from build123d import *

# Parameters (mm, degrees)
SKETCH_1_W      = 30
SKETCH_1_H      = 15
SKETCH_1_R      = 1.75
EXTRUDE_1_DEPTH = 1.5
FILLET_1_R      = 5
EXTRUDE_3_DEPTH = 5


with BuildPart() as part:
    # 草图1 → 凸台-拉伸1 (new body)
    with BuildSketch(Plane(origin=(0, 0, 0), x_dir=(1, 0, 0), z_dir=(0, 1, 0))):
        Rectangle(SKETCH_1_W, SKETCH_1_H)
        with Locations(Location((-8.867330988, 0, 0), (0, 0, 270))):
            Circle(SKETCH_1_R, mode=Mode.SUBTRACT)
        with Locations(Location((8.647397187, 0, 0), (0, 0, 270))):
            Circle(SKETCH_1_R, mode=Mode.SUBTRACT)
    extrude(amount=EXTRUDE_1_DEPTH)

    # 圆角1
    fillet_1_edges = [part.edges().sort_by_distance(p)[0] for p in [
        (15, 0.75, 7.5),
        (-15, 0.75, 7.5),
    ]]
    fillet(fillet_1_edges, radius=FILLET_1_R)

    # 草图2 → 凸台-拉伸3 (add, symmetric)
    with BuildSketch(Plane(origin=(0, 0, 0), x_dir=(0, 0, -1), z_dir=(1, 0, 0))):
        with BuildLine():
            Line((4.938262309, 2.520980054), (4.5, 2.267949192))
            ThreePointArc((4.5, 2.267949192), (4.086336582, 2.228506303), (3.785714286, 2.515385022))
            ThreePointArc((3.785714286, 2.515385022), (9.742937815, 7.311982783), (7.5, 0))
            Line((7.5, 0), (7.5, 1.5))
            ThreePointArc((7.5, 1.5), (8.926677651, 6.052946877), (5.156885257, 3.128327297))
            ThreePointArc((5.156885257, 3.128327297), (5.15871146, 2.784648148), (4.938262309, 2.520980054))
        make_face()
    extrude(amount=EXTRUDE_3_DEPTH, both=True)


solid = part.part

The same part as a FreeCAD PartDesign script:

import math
import FreeCAD as App
import Part
import Sketcher
Q = App.Units.Quantity


def edges_at(feature, points):
    """Names of the edges that pass closest to the given points."""
    edges = feature.Shape.Edges
    near = lambda p: min(range(len(edges)), key=lambda i: edges[i].distToShape(Part.Vertex(*p))[0])
    return sorted({f"Edge{near(p) + 1}" for p in points})


def add_polygon(sketch, points):
    """Adds a closed chain of lines whose ends are joined by coincident constraints."""
    first, n = sketch.GeometryCount, len(points)
    for a, b in zip(points, points[1:] + points[:1]):
        sketch.addGeometry(Part.LineSegment(App.Vector(*a, 0), App.Vector(*b, 0)), False)
    for i in range(n):
        sketch.addConstraint(Sketcher.Constraint("Coincident", first + i, 2, first + (i + 1) % n, 1))

doc = App.newDocument("Part")
body = doc.addObject("PartDesign::Body", "Body")

sketch1 = body.newObject("Sketcher::SketchObject", "Sketch")
sketch1.AttachmentSupport = (doc.getObject("XZ_Plane"), [""])
sketch1.MapMode = "FlatFace"
add_polygon(sketch1, [(-15, -7.5), (-15, 7.5), (15, 7.5), (15, -7.5)])
sketch1.addGeometry(Part.Circle(App.Vector(-8.9, 0, 0), App.Vector(0, 0, 1), 1.8), False)
sketch1.addGeometry(Part.Circle(App.Vector(8.6, 0, 0), App.Vector(0, 0, 1), 1.8), False)
sketch1.addConstraint([
    Sketcher.Constraint("Vertical", 0),
    Sketcher.Constraint("Horizontal", 1),
    Sketcher.Constraint("Vertical", 2),
    Sketcher.Constraint("Horizontal", 3),
    Sketcher.Constraint("Equal", 4, 5),
    Sketcher.Constraint("Symmetric", 0, 2, 2, 2, -1, 1),
    Sketcher.Constraint("PointOnObject", 4, 3, -1),
    Sketcher.Constraint("PointOnObject", 5, 3, -1),
    Sketcher.Constraint("Diameter", 4, Q("3.5 mm")),
    Sketcher.Constraint("DistanceX", 1, 1, 1, 2, Q("30 mm")),
    Sketcher.Constraint("DistanceY", 0, 1, 0, 2, Q("15 mm")),
    Sketcher.Constraint("DistanceX", 4, 3, -1, 1, Q("8.867331 mm")),
    Sketcher.Constraint("DistanceX", 4, 3, 5, 3, Q("17.514728 mm")),
])
pad1 = body.newObject("PartDesign::Pad", "Pad")
pad1.Profile = sketch1
pad1.Length = 1.5
pad1.Reversed = True
doc.recompute()

fillet = body.newObject("PartDesign::Fillet", "Fillet")
fillet.Base = (pad1, edges_at(pad1, [(15, 0.75, 7.5), (-15, 0.75, 7.5)]))
fillet.Radius = 5

sketch2 = body.newObject("Sketcher::SketchObject", "Sketch001")
sketch2.AttachmentSupport = (doc.getObject("YZ_Plane"), [""])
sketch2.MapMode = "FlatFace"
sketch2.addGeometry([
    Part.LineSegment(App.Vector(2.3, -4.5, 0), App.Vector(2.5, -4.9, 0)),
    Part.ArcOfCircle(Part.Circle(App.Vector(3, -4.7, 0), App.Vector(0, 0, 1), 0.5), math.radians(-150), math.radians(-70)),
    Part.ArcOfCircle(Part.Circle(App.Vector(4, -7.5, 0), App.Vector(0, 0, 1), 2.5), math.radians(180), math.radians(470)),
    Part.LineSegment(App.Vector(1.5, -7.5, 0), App.Vector(0, -7.5, 0)),
    Part.ArcOfCircle(Part.Circle(App.Vector(4, -7.5, 0), App.Vector(0, 0, 1), 4), math.radians(180), math.radians(472)),
    Part.ArcOfCircle(Part.Circle(App.Vector(2.7, -4.2, 0), App.Vector(0, 0, 1), 0.5), math.radians(112), math.radians(210)),
], False)
sketch2.addConstraint([
    Sketcher.Constraint("Tangent", 0, 2, 1, 1),
    Sketcher.Constraint("Tangent", 1, 2, 2, 2),
    Sketcher.Constraint("Coincident", 2, 1, 3, 1),
    Sketcher.Constraint("Coincident", 3, 2, 4, 1),
    Sketcher.Constraint("Tangent", 4, 2, 5, 1),
    Sketcher.Constraint("Tangent", 5, 2, 0, 1),
    Sketcher.Constraint("Horizontal", 3),
    Sketcher.Constraint("Coincident", 4, 3, 2, 3),
    Sketcher.Constraint("Equal", 1, 5),
    Sketcher.Constraint("PointOnObject", 3, 2, -2),
    Sketcher.Constraint("Horizontal", 4, 3, 2, 1),
    Sketcher.Constraint("Radius", 4, Q("4 mm")),
    Sketcher.Constraint("Radius", 1, Q("0.5 mm")),
    Sketcher.Constraint("Radius", 2, Q("2.5 mm")),
    Sketcher.Constraint("Angle", 0, Q("-60 deg")),
    Sketcher.Constraint("DistanceY", 2, 3, -1, 1, Q("7.5 mm")),
    Sketcher.Constraint("DistanceY", 5, 2, -1, 1, Q("4.5 mm")),
])
pad2 = body.newObject("PartDesign::Pad", "Pad001")
pad2.Profile = sketch2
pad2.Length = 10
pad2.Midplane = True

doc.recompute()
